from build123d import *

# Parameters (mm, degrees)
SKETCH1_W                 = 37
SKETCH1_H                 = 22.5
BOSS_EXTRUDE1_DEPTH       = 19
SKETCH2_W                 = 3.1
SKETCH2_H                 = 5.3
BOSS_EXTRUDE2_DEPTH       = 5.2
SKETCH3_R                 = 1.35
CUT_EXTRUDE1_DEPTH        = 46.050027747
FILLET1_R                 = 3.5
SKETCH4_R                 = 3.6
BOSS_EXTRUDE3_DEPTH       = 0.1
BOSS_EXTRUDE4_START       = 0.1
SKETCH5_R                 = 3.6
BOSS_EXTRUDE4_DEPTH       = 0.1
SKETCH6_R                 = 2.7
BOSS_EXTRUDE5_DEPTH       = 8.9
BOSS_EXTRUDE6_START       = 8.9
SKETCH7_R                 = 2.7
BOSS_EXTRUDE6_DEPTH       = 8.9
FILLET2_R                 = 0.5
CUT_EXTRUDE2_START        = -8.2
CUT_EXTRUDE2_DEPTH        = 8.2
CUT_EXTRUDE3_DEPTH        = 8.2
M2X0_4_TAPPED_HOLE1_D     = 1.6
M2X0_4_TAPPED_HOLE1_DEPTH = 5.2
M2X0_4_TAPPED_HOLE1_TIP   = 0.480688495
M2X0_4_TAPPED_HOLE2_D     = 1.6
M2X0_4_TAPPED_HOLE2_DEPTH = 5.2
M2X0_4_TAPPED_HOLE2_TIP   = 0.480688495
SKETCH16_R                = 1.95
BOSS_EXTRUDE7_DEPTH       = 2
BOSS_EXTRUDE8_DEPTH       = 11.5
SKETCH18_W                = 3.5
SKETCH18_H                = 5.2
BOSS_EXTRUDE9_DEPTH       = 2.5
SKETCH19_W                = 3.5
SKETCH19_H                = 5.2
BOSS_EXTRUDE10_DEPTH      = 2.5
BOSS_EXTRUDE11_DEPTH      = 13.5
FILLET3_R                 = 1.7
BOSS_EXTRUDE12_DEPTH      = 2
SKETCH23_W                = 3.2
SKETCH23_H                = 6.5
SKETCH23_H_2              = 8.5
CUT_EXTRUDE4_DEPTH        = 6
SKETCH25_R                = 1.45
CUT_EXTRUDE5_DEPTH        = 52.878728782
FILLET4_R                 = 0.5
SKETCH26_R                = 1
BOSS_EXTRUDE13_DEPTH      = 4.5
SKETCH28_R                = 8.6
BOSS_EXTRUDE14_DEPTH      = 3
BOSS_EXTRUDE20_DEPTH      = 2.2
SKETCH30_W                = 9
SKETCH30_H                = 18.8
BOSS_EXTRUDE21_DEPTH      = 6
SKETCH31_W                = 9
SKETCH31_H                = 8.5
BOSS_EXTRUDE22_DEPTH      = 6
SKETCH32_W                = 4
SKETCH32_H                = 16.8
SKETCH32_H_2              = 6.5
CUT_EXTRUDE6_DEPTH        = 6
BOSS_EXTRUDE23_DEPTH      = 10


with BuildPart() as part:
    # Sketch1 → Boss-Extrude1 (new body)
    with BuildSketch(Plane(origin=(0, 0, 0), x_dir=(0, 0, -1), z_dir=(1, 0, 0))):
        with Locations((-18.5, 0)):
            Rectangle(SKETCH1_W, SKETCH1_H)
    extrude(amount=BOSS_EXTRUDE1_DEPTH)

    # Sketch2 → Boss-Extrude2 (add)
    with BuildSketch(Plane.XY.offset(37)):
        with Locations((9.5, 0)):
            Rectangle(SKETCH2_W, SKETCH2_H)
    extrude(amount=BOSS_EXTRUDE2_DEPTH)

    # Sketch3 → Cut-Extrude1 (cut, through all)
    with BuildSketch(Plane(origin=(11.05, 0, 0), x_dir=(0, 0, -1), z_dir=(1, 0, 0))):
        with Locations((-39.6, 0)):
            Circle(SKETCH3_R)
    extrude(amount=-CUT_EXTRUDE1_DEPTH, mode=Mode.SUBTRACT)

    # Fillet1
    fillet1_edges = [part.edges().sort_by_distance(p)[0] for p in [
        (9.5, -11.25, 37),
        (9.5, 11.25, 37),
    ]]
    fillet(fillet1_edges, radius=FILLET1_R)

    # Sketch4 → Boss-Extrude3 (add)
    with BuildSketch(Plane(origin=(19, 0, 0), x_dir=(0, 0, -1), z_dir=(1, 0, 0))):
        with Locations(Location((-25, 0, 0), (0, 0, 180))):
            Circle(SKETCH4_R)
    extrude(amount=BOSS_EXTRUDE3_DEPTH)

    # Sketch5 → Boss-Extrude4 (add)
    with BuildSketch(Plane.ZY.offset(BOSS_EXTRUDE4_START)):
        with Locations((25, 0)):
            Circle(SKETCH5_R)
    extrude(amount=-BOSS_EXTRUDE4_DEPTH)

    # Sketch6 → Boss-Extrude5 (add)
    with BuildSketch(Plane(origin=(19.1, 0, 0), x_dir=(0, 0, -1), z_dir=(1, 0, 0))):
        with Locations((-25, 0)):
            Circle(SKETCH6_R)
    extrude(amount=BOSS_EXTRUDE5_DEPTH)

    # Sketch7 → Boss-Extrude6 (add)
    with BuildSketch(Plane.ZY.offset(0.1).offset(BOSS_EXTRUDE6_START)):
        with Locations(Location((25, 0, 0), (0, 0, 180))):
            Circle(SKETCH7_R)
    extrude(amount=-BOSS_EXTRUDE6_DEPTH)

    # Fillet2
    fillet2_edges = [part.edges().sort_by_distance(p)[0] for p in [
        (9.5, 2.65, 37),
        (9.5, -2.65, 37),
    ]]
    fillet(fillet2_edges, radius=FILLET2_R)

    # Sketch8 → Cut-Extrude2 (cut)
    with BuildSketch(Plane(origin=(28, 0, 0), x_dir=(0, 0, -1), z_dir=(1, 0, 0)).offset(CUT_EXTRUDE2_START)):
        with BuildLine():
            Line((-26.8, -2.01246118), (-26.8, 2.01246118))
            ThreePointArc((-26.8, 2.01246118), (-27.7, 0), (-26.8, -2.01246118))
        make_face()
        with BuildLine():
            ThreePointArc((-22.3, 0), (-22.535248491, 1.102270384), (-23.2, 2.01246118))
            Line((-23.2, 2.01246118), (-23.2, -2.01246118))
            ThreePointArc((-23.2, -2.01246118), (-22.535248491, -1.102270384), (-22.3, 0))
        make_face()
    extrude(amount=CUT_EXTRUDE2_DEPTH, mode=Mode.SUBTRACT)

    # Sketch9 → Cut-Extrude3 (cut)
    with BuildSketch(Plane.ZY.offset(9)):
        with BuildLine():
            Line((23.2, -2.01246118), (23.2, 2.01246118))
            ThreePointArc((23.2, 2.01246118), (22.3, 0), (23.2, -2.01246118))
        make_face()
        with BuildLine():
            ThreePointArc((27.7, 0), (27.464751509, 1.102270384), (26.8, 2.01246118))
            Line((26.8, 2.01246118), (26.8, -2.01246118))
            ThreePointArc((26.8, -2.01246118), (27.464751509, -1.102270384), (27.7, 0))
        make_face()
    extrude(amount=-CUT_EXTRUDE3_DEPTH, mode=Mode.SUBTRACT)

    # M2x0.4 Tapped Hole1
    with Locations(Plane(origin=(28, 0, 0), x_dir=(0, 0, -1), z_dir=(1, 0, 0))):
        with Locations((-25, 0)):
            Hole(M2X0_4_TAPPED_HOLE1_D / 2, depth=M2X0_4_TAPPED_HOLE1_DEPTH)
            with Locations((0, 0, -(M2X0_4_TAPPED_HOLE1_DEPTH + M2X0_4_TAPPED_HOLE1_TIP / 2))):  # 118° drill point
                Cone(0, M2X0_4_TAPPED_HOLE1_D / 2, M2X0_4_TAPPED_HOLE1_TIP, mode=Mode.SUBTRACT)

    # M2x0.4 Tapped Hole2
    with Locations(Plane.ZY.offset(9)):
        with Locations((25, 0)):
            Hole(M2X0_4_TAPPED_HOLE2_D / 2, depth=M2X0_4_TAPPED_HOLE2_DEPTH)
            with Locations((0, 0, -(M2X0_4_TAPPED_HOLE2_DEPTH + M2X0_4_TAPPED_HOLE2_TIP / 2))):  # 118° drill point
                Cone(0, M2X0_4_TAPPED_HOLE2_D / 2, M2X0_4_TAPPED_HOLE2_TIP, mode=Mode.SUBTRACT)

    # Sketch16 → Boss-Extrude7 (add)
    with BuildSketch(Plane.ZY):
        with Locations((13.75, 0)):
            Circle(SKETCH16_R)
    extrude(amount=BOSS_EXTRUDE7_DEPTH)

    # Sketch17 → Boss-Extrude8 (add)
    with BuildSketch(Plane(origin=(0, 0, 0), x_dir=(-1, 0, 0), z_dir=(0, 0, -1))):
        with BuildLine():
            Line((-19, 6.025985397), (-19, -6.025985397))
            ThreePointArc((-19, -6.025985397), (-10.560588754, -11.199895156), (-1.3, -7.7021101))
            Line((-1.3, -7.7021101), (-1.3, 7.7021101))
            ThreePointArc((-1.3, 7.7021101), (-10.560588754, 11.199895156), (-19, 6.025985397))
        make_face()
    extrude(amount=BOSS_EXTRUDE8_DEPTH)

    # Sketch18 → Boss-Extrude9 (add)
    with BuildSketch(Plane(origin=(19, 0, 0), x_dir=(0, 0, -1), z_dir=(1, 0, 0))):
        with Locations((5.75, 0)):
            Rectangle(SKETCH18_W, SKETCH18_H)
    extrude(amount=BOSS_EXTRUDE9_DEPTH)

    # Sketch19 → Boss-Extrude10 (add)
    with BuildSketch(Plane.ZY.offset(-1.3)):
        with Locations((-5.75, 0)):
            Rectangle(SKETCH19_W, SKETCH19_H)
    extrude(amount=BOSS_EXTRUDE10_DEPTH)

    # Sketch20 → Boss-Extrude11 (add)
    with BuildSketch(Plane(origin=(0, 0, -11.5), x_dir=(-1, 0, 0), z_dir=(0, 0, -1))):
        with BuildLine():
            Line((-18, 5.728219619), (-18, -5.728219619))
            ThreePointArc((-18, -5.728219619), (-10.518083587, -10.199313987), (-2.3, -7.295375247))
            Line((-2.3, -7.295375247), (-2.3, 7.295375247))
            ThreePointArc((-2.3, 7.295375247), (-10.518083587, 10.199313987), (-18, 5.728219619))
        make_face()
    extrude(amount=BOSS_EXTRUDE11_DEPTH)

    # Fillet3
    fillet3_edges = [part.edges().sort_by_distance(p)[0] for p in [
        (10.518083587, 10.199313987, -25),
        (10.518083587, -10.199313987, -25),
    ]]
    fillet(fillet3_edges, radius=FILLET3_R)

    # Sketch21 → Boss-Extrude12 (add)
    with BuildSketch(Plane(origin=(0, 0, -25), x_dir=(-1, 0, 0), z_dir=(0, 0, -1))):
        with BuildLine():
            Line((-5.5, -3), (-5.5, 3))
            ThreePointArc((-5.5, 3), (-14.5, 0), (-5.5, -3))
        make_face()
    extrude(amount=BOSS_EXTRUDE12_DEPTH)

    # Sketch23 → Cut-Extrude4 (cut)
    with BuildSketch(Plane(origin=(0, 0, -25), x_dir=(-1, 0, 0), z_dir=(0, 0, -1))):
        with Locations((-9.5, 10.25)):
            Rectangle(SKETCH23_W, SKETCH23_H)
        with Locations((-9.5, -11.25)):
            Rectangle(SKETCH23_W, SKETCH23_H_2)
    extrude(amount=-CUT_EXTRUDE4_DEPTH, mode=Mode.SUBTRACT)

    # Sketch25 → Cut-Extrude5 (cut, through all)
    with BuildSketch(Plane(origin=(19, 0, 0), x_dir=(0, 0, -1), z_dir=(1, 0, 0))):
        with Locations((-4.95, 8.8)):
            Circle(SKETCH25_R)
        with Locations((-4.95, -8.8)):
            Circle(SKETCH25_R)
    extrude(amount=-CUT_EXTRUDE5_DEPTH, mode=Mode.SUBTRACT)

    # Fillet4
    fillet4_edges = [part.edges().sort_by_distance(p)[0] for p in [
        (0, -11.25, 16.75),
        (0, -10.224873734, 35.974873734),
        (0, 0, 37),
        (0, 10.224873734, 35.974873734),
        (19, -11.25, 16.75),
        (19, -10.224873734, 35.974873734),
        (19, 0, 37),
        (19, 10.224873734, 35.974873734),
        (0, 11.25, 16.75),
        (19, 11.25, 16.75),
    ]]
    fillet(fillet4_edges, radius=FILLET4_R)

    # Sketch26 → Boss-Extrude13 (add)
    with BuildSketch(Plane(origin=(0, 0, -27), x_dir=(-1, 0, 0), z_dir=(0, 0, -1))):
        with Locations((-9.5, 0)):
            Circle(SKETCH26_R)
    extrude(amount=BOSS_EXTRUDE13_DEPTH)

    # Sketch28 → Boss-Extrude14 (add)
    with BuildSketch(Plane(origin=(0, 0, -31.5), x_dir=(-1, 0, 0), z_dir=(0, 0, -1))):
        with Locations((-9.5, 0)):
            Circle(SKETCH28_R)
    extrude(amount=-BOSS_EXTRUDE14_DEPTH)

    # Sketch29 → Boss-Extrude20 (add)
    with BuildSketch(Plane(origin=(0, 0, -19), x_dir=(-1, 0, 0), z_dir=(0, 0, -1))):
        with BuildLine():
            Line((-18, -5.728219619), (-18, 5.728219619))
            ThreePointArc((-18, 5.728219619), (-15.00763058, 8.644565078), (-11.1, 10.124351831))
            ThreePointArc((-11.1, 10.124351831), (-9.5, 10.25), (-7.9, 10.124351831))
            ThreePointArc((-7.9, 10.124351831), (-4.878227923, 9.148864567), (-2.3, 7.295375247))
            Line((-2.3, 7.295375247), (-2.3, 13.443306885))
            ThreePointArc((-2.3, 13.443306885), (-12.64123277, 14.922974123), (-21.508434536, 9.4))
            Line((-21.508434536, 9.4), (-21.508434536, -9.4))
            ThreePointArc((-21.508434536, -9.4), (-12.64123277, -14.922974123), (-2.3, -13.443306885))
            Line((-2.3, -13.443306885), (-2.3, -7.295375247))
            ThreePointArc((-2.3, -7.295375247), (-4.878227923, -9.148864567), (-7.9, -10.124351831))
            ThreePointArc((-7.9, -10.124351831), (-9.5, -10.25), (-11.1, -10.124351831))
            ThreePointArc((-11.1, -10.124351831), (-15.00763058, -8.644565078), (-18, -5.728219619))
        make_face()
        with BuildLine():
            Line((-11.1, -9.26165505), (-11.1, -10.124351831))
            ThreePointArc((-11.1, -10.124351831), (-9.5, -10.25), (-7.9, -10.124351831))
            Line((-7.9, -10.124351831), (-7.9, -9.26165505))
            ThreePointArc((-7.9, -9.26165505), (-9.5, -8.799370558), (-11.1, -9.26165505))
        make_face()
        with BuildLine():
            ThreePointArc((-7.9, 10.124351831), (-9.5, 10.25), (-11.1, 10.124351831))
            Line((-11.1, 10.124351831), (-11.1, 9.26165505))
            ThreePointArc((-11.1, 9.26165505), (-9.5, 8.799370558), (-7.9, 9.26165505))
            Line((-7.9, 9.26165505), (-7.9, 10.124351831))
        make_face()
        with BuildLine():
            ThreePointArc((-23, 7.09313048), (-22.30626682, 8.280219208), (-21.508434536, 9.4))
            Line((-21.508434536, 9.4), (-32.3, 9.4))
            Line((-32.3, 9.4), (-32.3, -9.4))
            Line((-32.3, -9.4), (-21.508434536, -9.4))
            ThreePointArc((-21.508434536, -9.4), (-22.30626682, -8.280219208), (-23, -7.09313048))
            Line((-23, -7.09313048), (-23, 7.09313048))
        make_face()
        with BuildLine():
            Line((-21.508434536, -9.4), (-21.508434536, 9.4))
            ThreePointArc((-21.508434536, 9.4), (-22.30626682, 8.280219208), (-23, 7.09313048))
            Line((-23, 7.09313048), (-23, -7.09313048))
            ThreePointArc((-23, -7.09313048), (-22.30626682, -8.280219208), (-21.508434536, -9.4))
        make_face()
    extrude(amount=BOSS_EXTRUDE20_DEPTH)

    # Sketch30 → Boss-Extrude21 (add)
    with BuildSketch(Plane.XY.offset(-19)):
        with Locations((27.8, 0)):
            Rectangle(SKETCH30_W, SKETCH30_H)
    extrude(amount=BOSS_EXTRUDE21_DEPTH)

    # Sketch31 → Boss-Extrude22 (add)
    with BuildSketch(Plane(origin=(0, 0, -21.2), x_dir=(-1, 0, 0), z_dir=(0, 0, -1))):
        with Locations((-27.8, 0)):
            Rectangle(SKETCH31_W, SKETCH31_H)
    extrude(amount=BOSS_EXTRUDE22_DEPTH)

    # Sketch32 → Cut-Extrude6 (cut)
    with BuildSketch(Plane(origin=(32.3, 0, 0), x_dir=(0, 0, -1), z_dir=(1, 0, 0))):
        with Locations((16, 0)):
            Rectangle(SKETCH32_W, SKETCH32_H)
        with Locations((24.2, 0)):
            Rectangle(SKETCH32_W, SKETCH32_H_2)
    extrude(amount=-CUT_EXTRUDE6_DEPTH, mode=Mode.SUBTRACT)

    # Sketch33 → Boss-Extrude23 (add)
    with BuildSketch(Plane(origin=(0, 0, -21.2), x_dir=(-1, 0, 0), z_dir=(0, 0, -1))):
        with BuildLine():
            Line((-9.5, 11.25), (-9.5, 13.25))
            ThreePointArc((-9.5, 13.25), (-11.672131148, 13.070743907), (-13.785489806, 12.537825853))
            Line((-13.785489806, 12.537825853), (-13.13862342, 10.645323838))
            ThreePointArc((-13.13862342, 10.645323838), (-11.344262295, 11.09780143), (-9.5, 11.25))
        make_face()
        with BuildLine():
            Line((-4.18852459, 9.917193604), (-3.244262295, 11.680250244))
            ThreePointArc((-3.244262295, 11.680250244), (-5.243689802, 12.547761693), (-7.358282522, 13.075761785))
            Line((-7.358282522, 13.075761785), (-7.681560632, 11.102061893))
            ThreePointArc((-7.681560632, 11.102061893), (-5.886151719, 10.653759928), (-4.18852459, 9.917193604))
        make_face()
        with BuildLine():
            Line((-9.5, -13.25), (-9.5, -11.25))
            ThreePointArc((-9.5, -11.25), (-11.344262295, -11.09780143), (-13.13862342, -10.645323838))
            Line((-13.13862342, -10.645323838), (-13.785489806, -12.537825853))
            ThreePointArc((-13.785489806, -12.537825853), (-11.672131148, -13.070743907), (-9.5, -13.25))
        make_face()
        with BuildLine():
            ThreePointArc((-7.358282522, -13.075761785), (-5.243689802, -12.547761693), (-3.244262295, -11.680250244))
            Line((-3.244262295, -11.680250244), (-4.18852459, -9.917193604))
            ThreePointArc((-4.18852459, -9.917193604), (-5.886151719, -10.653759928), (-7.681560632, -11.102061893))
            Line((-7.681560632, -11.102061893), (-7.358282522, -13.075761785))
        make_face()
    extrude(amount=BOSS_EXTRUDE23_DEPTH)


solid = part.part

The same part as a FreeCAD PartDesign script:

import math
import FreeCAD as App
import Part
import Sketcher
from FreeCAD import Vector


def edges_at(feature, points):
    """Names of the edges that pass closest to the given points."""
    edges = feature.Shape.Edges
    near = lambda p: min(range(len(edges)), key=lambda i: edges[i].distToShape(Part.Vertex(*p))[0])
    return sorted({f"Edge{near(p) + 1}" for p in points})


def add_polygon(sketch, points):
    """Adds a closed chain of lines whose ends are joined by coincident constraints."""
    first, n = sketch.GeometryCount, len(points)
    for a, b in zip(points, points[1:] + points[:1]):
        sketch.addGeometry(Part.LineSegment(App.Vector(*a, 0), App.Vector(*b, 0)), False)
    for i in range(n):
        sketch.addConstraint(Sketcher.Constraint("Coincident", first + i, 2, first + (i + 1) % n, 1))

doc = App.newDocument("Part")
body = doc.addObject("PartDesign::Body", "Body")

# Sketch on YZ plane
sketch1 = body.newObject("Sketcher::SketchObject", "Sketch")
sketch1.AttachmentSupport = (doc.getObject("YZ_Plane"), [""])
sketch1.MapMode = "FlatFace"
add_polygon(sketch1, [(11, 37), (-11, 37), (-11, 0), (11, 0)])  # lines 0-3
sketch1.addConstraint(Sketcher.Constraint("Horizontal", 0))
sketch1.addConstraint(Sketcher.Constraint("Vertical", 1))
sketch1.addConstraint(Sketcher.Constraint("Horizontal", 2))
sketch1.addConstraint(Sketcher.Constraint("Vertical", 3))
sketch1.addConstraint(Sketcher.Constraint("Symmetric", 1, 2, 2, 2, -1, 1))
sketch1.addConstraint(Sketcher.Constraint("DistanceY", 1, 2, 1, 1, 37.0))
sketch1.addConstraint(Sketcher.Constraint("DistanceX", 0, 2, 0, 1, 22.5))
pad1 = body.newObject("PartDesign::Pad", "Pad")
pad1.Profile = sketch1
pad1.Length = 19

# Sketch on XY plane
sketch2 = body.newObject("Sketcher::SketchObject", "Sketch001")
sketch2.AttachmentSupport = (doc.getObject("XY_Plane"), [""])
sketch2.MapMode = "FlatFace"
sketch2.AttachmentOffset = App.Placement(Vector(0, 0, 37), App.Rotation())
add_polygon(sketch2, [(8, 2.6), (8, -2.6), (11.1, -2.6), (11.1, 2.6)])  # lines 0-3
sketch2.addConstraint(Sketcher.Constraint("Vertical", 0))
sketch2.addConstraint(Sketcher.Constraint("Horizontal", 1))
sketch2.addConstraint(Sketcher.Constraint("Vertical", 2))
sketch2.addConstraint(Sketcher.Constraint("Horizontal", 3))
sketch2.addConstraint(Sketcher.Constraint("DistanceX", 1, 1, 1, 2, 3.1))
sketch2.addConstraint(Sketcher.Constraint("DistanceY", 0, 2, 0, 1, 5.3))
sketch2.addConstraint(Sketcher.Constraint("DistanceX", -1, 1, 0, 2, 7.95))
sketch2.addConstraint(Sketcher.Constraint("DistanceY", 0, 2, -1, 1, 2.65))
pad2 = body.newObject("PartDesign::Pad", "Pad001")
pad2.Profile = sketch2
pad2.Length = 5.2

# Sketch on YZ plane
sketch3 = body.newObject("Sketcher::SketchObject", "Sketch002")
sketch3.AttachmentSupport = (doc.getObject("YZ_Plane"), [""])
sketch3.MapMode = "FlatFace"
sketch3.AttachmentOffset = App.Placement(Vector(0, 0, 11.05), App.Rotation())
sketch3.addGeometry(Part.Circle(Vector(0, 39.6, 0), Vector(0, 0, 1), 1.4), False)
sketch3.addConstraint(Sketcher.Constraint("PointOnObject", 0, 3, -2))
sketch3.addConstraint(Sketcher.Constraint("Diameter", 0, 2.7))
sketch3.addConstraint(Sketcher.Constraint("DistanceY", -1, 1, 0, 3, 39.6))
pocket1 = body.newObject("PartDesign::Pocket", "Pocket")
pocket1.Profile = sketch3
pocket1.Type = "ThroughAll"
doc.recompute()

fillet = body.newObject("PartDesign::Fillet", "Fillet")
fillet.Base = (pocket1, edges_at(pocket1, [(9.5, -11.25, 37), (9.5, 11.25, 37)]))
fillet.Radius = 3.5

# Sketch on YZ plane
sketch4 = body.newObject("Sketcher::SketchObject", "Sketch003")
sketch4.AttachmentSupport = (doc.getObject("YZ_Plane"), [""])
sketch4.MapMode = "FlatFace"
sketch4.AttachmentOffset = App.Placement(Vector(0, 0, 19), App.Rotation())
sketch4.addGeometry(Part.Circle(Vector(0, 25, 0), Vector(0, 0, 1), 3.6), False)
sketch4.addConstraint(Sketcher.Constraint("PointOnObject", 0, 3, -2))
sketch4.addConstraint(Sketcher.Constraint("Diameter", 0, 7.2))
sketch4.addConstraint(Sketcher.Constraint("DistanceY", -1, 1, 0, 3, 25.0))
pad3 = body.newObject("PartDesign::Pad", "Pad002")
pad3.Profile = sketch4
pad3.Length = 0.1

# Sketch on YZ plane
sketch5 = body.newObject("Sketcher::SketchObject", "Sketch004")
sketch5.AttachmentSupport = (doc.getObject("YZ_Plane"), [""])
sketch5.MapMode = "FlatFace"
sketch5.AttachmentOffset = App.Placement(Vector(0, 0, -0.1), App.Rotation())
sketch5.addGeometry(Part.Circle(Vector(0, 25, 0), Vector(0, 0, 1), 3.6), False)
sketch5.addConstraint(Sketcher.Constraint("PointOnObject", 0, 3, -2))
sketch5.addConstraint(Sketcher.Constraint("Diameter", 0, 7.2))
sketch5.addConstraint(Sketcher.Constraint("DistanceY", -1, 1, 0, 3, 25.0))
pad4 = body.newObject("PartDesign::Pad", "Pad003")
pad4.Profile = sketch5
pad4.Length = 0.1

# Sketch on YZ plane
sketch6 = body.newObject("Sketcher::SketchObject", "Sketch005")
sketch6.AttachmentSupport = (doc.getObject("YZ_Plane"), [""])
sketch6.MapMode = "FlatFace"
sketch6.AttachmentOffset = App.Placement(Vector(0, 0, 19.1), App.Rotation())
sketch6.addGeometry(Part.Circle(Vector(0, 25, 0), Vector(0, 0, 1), 2.7), False)
sketch6.addConstraint(Sketcher.Constraint("PointOnObject", 0, 3, -2))
sketch6.addConstraint(Sketcher.Constraint("Diameter", 0, 5.4))
sketch6.addConstraint(Sketcher.Constraint("DistanceY", -1, 1, 0, 3, 25.0))
pad5 = body.newObject("PartDesign::Pad", "Pad004")
pad5.Profile = sketch6
pad5.Length = 8.9

# Sketch on YZ plane
sketch7 = body.newObject("Sketcher::SketchObject", "Sketch006")
sketch7.AttachmentSupport = (doc.getObject("YZ_Plane"), [""])
sketch7.MapMode = "FlatFace"
sketch7.AttachmentOffset = App.Placement(Vector(0, 0, -9), App.Rotation())
sketch7.addGeometry(Part.Circle(Vector(0, 25, 0), Vector(0, 0, 1), 2.7), False)
sketch7.addConstraint(Sketcher.Constraint("PointOnObject", 0, 3, -2))
sketch7.addConstraint(Sketcher.Constraint("Diameter", 0, 5.4))
sketch7.addConstraint(Sketcher.Constraint("DistanceY", -1, 1, 0, 3, 25.0))
pad6 = body.newObject("PartDesign::Pad", "Pad005")
pad6.Profile = sketch7
pad6.Length = 8.9
doc.recompute()

fillet2 = body.newObject("PartDesign::Fillet", "Fillet001")
fillet2.Base = (pad6, edges_at(pad6, [(9.5, 2.65, 37), (9.5, -2.65, 37)]))
fillet2.Radius = 0.5

# Sketch on YZ plane
sketch8 = body.newObject("Sketcher::SketchObject", "Sketch007")
sketch8.AttachmentSupport = (doc.getObject("YZ_Plane"), [""])
sketch8.MapMode = "FlatFace"
sketch8.AttachmentOffset = App.Placement(Vector(0, 0, 19.8), App.Rotation())
sketch8.addGeometry(Part.LineSegment(Vector(-2, 26.8, 0), Vector(2, 26.8, 0)), False)
sketch8.addGeometry(Part.ArcOfCircle(Part.Circle(Vector(0, 25, 0), Vector(0, 0, 1), 2.7), math.radians(42), math.radians(138)), False)
sketch8.addGeometry(Part.ArcOfCircle(Part.Circle(Vector(0, 25, 0), Vector(0, 0, 1), 2.7), math.radians(-90), math.radians(-42)), False)
sketch8.addGeometry(Part.LineSegment(Vector(2, 23.2, 0), Vector(-2, 23.2, 0)), False)
sketch8.addGeometry(Part.ArcOfCircle(Part.Circle(Vector(0, 25, 0), Vector(0, 0, 1), 2.7), math.radians(-138), math.radians(-90)), False)
sketch8.addConstraint(Sketcher.Constraint("Coincident", 0, 1, 1, 2))
sketch8.addConstraint(Sketcher.Constraint("Coincident", 1, 1, 0, 2))
sketch8.addConstraint(Sketcher.Constraint("Coincident", 2, 2, 3, 1))
sketch8.addConstraint(Sketcher.Constraint("Coincident", 3, 2, 4, 1))
sketch8.addConstraint(Sketcher.Constraint("Tangent", 4, 2, 2, 1))
sketch8.addConstraint(Sketcher.Constraint("Horizontal", 0))
sketch8.addConstraint(Sketcher.Constraint("Horizontal", 3))
sketch8.addConstraint(Sketcher.Constraint("Coincident", 2, 3, 1, 3))
sketch8.addConstraint(Sketcher.Constraint("Equal", 1, 2))
sketch8.addConstraint(Sketcher.Constraint("Equal", 2, 4))
sketch8.addConstraint(Sketcher.Constraint("PointOnObject", 1, 3, -2))
sketch8.addConstraint(Sketcher.Constraint("PointOnObject", 4, 2, -2))
sketch8.addConstraint(Sketcher.Constraint("Vertical", 1, 1, 2, 2))
sketch8.addConstraint(Sketcher.Constraint("Radius", 1, 2.7))
sketch8.addConstraint(Sketcher.Constraint("DistanceY", -1, 1, 1, 3, 25.0))
sketch8.addConstraint(Sketcher.Constraint("DistanceY", -1, 1, 0, 1, 26.8))
pocket2 = body.newObject("PartDesign::Pocket", "Pocket001")
pocket2.Profile = sketch8
pocket2.Length = 8.2
pocket2.Reversed = True

# Sketch on YZ plane
sketch9 = body.newObject("Sketcher::SketchObject", "Sketch008")
sketch9.AttachmentSupport = (doc.getObject("YZ_Plane"), [""])
sketch9.MapMode = "FlatFace"
sketch9.AttachmentOffset = App.Placement(Vector(0, 0, -9), App.Rotation())
sketch9.addGeometry(Part.LineSegment(Vector(-2, 23.2, 0), Vector(2, 23.2, 0)), False)
sketch9.addGeometry(Part.ArcOfCircle(Part.Circle(Vector(0, 25, 0), Vector(0, 0, 1), 2.7), math.radians(-138), math.radians(-42)), False)
sketch9.addGeometry(Part.ArcOfCircle(Part.Circle(Vector(0, 25, 0), Vector(0, 0, 1), 2.7), math.radians(42), math.radians(90)), False)
sketch9.addGeometry(Part.LineSegment(Vector(2, 26.8, 0), Vector(-2, 26.8, 0)), False)
sketch9.addGeometry(Part.ArcOfCircle(Part.Circle(Vector(0, 25, 0), Vector(0, 0, 1), 2.7), math.radians(90), math.radians(138)), False)
sketch9.addConstraint(Sketcher.Constraint("Coincident", 0, 1, 1, 1))
sketch9.addConstraint(Sketcher.Constraint("Coincident", 1, 2, 0, 2))
sketch9.addConstraint(Sketcher.Constraint("Coincident", 2, 1, 3, 1))
sketch9.addConstraint(Sketcher.Constraint("Coincident", 3, 2, 4, 2))
sketch9.addConstraint(Sketcher.Constraint("Tangent", 4, 1, 2, 2))
sketch9.addConstraint(Sketcher.Constraint("Horizontal", 0))
sketch9.addConstraint(Sketcher.Constraint("Horizontal", 3))
sketch9.addConstraint(Sketcher.Constraint("Coincident", 2, 3, 1, 3))
sketch9.addConstraint(Sketcher.Constraint("Equal", 1, 2))
sketch9.addConstraint(Sketcher.Constraint("Equal", 2, 4))
sketch9.addConstraint(Sketcher.Constraint("PointOnObject", 1, 3, -2))
sketch9.addConstraint(Sketcher.Constraint("PointOnObject", 4, 1, -2))
sketch9.addConstraint(Sketcher.Constraint("Vertical", 1, 2, 2, 1))
sketch9.addConstraint(Sketcher.Constraint("Radius", 1, 2.7))
sketch9.addConstraint(Sketcher.Constraint("DistanceY", -1, 1, 1, 3, 25.0))
sketch9.addConstraint(Sketcher.Constraint("DistanceY", -1, 1, 0, 1, 23.2))
pocket3 = body.newObject("PartDesign::Pocket", "Pocket002")
pocket3.Profile = sketch9
pocket3.Length = 8.2
pocket3.Reversed = True

# Sketch on YZ plane
sketch10 = body.newObject("Sketcher::SketchObject", "Sketch009")
sketch10.AttachmentSupport = (doc.getObject("YZ_Plane"), [""])
sketch10.MapMode = "FlatFace"
sketch10.AttachmentOffset = App.Placement(Vector(0, 0, 28), App.Rotation())
sketch10.addGeometry(Part.Circle(Vector(0, 25, 0), Vector(0, 0, 1), 0.8), False)
sketch10.addConstraint(Sketcher.Constraint("PointOnObject", 0, 3, -2))
sketch10.addConstraint(Sketcher.Constraint("Diameter", 0, 1.6))
sketch10.addConstraint(Sketcher.Constraint("DistanceY", -1, 1, 0, 3, 25.0))
doc.recompute()
hole = body.newObject("PartDesign::Hole", "Hole")
hole.Profile = sketch10
hole.ThreadType = "None"
hole.Diameter = 1.6
hole.DepthType = "Dimension"
hole.Depth = 5.2
hole.DrillPoint = "Angled"
hole.DrillPointAngle = 118

# Sketch on YZ plane
sketch11 = body.newObject("Sketcher::SketchObject", "Sketch010")
sketch11.AttachmentSupport = (doc.getObject("YZ_Plane"), [""])
sketch11.MapMode = "FlatFace"
sketch11.AttachmentOffset = App.Placement(Vector(0, 0, -9), App.Rotation())
sketch11.addGeometry(Part.Circle(Vector(0, 25, 0), Vector(0, 0, 1), 0.8), False)
sketch11.addConstraint(Sketcher.Constraint("PointOnObject", 0, 3, -2))
sketch11.addConstraint(Sketcher.Constraint("Diameter", 0, 1.6))
sketch11.addConstraint(Sketcher.Constraint("DistanceY", -1, 1, 0, 3, 25.0))
doc.recompute()
hole2 = body.newObject("PartDesign::Hole", "Hole001")
hole2.Profile = sketch11
hole2.ThreadType = "None"
hole2.Diameter = 1.6
hole2.DepthType = "Dimension"
hole2.Depth = 5.2
hole2.DrillPoint = "Angled"
hole2.DrillPointAngle = 118
hole2.Reversed = True

# Sketch on YZ plane
sketch12 = body.newObject("Sketcher::SketchObject", "Sketch011")
sketch12.AttachmentSupport = (doc.getObject("YZ_Plane"), [""])
sketch12.MapMode = "FlatFace"
sketch12.addGeometry(Part.Circle(Vector(0, 13.8, 0), Vector(0, 0, 1), 1.9), False)
sketch12.addConstraint(Sketcher.Constraint("PointOnObject", 0, 3, -2))
sketch12.addConstraint(Sketcher.Constraint("Diameter", 0, 3.9))
sketch12.addConstraint(Sketcher.Constraint("DistanceY", -1, 1, 0, 3, 13.75))
pad7 = body.newObject("PartDesign::Pad", "Pad006")
pad7.Profile = sketch12
pad7.Length = 2
pad7.Reversed = True

# Sketch on XY plane
sketch13 = body.newObject("Sketcher::SketchObject", "Sketch012")
sketch13.AttachmentSupport = (doc.getObject("XY_Plane"), [""])
sketch13.MapMode = "FlatFace"
sketch13.addGeometry(Part.LineSegment(Vector(19, 6, 0), Vector(19, -6, 0)), False)
sketch13.addGeometry(Part.ArcOfCircle(Part.Circle(Vector(10, 0, 0), Vector(0, 0, 1), 11), math.radians(-137), math.radians(-32)), False)
sketch13.addGeometry(Part.LineSegment(Vector(1, -8, 0), Vector(1, 8, 0)), False)
sketch13.addGeometry(Part.ArcOfCircle(Part.Circle(Vector(10, 0, 0), Vector(0, 0, 1), 11), math.radians(32), math.radians(137)), False)
sketch13.addConstraint(Sketcher.Constraint("Coincident", 0, 2, 1, 2))
sketch13.addConstraint(Sketcher.Constraint("Coincident", 1, 1, 2, 1))
sketch13.addConstraint(Sketcher.Constraint("Coincident", 2, 2, 3, 2))
sketch13.addConstraint(Sketcher.Constraint("Coincident", 3, 1, 0, 1))
sketch13.addConstraint(Sketcher.Constraint("Vertical", 0))
sketch13.addConstraint(Sketcher.Constraint("Vertical", 2))
sketch13.addConstraint(Sketcher.Constraint("Coincident", 3, 3, 1, 3))
sketch13.addConstraint(Sketcher.Constraint("Equal", 1, 3))
sketch13.addConstraint(Sketcher.Constraint("PointOnObject", 1, 3, -1))
sketch13.addConstraint(Sketcher.Constraint("Radius", 1, 11.25))
sketch13.addConstraint(Sketcher.Constraint("DistanceX", -1, 1, 0, 2, 19.0))
sketch13.addConstraint(Sketcher.Constraint("DistanceX", -1, 1, 1, 3, 9.5))
sketch13.addConstraint(Sketcher.Constraint("DistanceX", -1, 1, 1, 1, 1.3))
pad8 = body.newObject("PartDesign::Pad", "Pad007")
pad8.Profile = sketch13
pad8.Length = 11.5
pad8.Reversed = True

# Sketch on YZ plane
sketch14 = body.newObject("Sketcher::SketchObject", "Sketch013")
sketch14.AttachmentSupport = (doc.getObject("YZ_Plane"), [""])
sketch14.MapMode = "FlatFace"
sketch14.AttachmentOffset = App.Placement(Vector(0, 0, 19), App.Rotation())
add_polygon(sketch14, [(2.6, -4), (-2.6, -4), (-2.6, -7.5), (2.6, -7.5)])  # lines 0-3
sketch14.addConstraint(Sketcher.Constraint("Horizontal", 0))
sketch14.addConstraint(Sketcher.Constraint("Vertical", 1))
sketch14.addConstraint(Sketcher.Constraint("Horizontal", 2))
sketch14.addConstraint(Sketcher.Constraint("Vertical", 3))
sketch14.addConstraint(Sketcher.Constraint("DistanceX", 0, 2, 0, 1, 5.2))
sketch14.addConstraint(Sketcher.Constraint("DistanceY", 1, 2, 1, 1, 3.5))
sketch14.addConstraint(Sketcher.Constraint("DistanceY", 0, 2, -1, 1, 4.0))
sketch14.addConstraint(Sketcher.Constraint("DistanceX", 0, 2, -1, 1, 2.6))
pad9 = body.newObject("PartDesign::Pad", "Pad008")
pad9.Profile = sketch14
pad9.Length = 2.5

# Sketch on YZ plane
sketch15 = body.newObject("Sketcher::SketchObject", "Sketch014")
sketch15.AttachmentSupport = (doc.getObject("YZ_Plane"), [""])
sketch15.MapMode = "FlatFace"
sketch15.AttachmentOffset = App.Placement(Vector(0, 0, 1.3), App.Rotation())
add_polygon(sketch15, [(2.6, -7.5), (-2.6, -7.5), (-2.6, -4), (2.6, -4)])  # lines 0-3
sketch15.addConstraint(Sketcher.Constraint("Horizontal", 0))
sketch15.addConstraint(Sketcher.Constraint("Vertical", 1))
sketch15.addConstraint(Sketcher.Constraint("Horizontal", 2))
sketch15.addConstraint(Sketcher.Constraint("Vertical", 3))
sketch15.addConstraint(Sketcher.Constraint("DistanceX", 0, 2, 0, 1, 5.2))
sketch15.addConstraint(Sketcher.Constraint("DistanceY", 1, 1, 1, 2, 3.5))
sketch15.addConstraint(Sketcher.Constraint("DistanceY", 1, 2, -1, 1, 4.0))
sketch15.addConstraint(Sketcher.Constraint("DistanceX", 0, 2, -1, 1, 2.6))
pad10 = body.newObject("PartDesign::Pad", "Pad009")
pad10.Profile = sketch15
pad10.Length = 2.5
pad10.Reversed = True

# Sketch on XY plane
sketch16 = body.newObject("Sketcher::SketchObject", "Sketch015")
sketch16.AttachmentSupport = (doc.getObject("XY_Plane"), [""])
sketch16.MapMode = "FlatFace"
sketch16.AttachmentOffset = App.Placement(Vector(0, 0, -11.5), App.Rotation())
sketch16.addGeometry(Part.LineSegment(Vector(18, 6, 0), Vector(18, -6, 0)), False)
sketch16.addGeometry(Part.ArcOfCircle(Part.Circle(Vector(10, 0, 0), Vector(0, 0, 1), 10), math.radians(-135), math.radians(-34)), False)
sketch16.addGeometry(Part.LineSegment(Vector(2, -7, 0), Vector(2, 7, 0)), False)
sketch16.addGeometry(Part.ArcOfCircle(Part.Circle(Vector(10, 0, 0), Vector(0, 0, 1), 10), math.radians(34), math.radians(135)), False)
sketch16.addConstraint(Sketcher.Constraint("Coincident", 0, 2, 1, 2))
sketch16.addConstraint(Sketcher.Constraint("Coincident", 1, 1, 2, 1))
sketch16.addConstraint(Sketcher.Constraint("Coincident", 2, 2, 3, 2))
sketch16.addConstraint(Sketcher.Constraint("Coincident", 3, 1, 0, 1))
sketch16.addConstraint(Sketcher.Constraint("Vertical", 0))
sketch16.addConstraint(Sketcher.Constraint("Vertical", 2))
sketch16.addConstraint(Sketcher.Constraint("Coincident", 3, 3, 1, 3))
sketch16.addConstraint(Sketcher.Constraint("Equal", 1, 3))
sketch16.addConstraint(Sketcher.Constraint("PointOnObject", 1, 3, -1))
sketch16.addConstraint(Sketcher.Constraint("Radius", 1, 10.25))
sketch16.addConstraint(Sketcher.Constraint("DistanceX", -1, 1, 0, 2, 18.0))
sketch16.addConstraint(Sketcher.Constraint("DistanceX", -1, 1, 1, 3, 9.5))
sketch16.addConstraint(Sketcher.Constraint("DistanceX", -1, 1, 1, 1, 2.3))
pad11 = body.newObject("PartDesign::Pad", "Pad010")
pad11.Profile = sketch16
pad11.Length = 13.5
pad11.Reversed = True
doc.recompute()

fillet3 = body.newObject("PartDesign::Fillet", "Fillet002")
fillet3.Base = (pad11, edges_at(pad11, [(10.518, 10.199, -25), (10.518, -10.199, -25)]))
fillet3.Radius = 1.7

# Sketch on XY plane
sketch17 = body.newObject("Sketcher::SketchObject", "Sketch016")
sketch17.AttachmentSupport = (doc.getObject("XY_Plane"), [""])
sketch17.MapMode = "FlatFace"
sketch17.AttachmentOffset = App.Placement(Vector(0, 0, -25), App.Rotation())
sketch17.addGeometry(Part.LineSegment(Vector(6, -3, 0), Vector(6, 3, 0)), False)
sketch17.addGeometry(Part.ArcOfCircle(Part.Circle(Vector(10, 0, 0), Vector(0, 0, 1), 5), math.radians(-143), math.radians(143)), False)
sketch17.addConstraint(Sketcher.Constraint("Coincident", 0, 1, 1, 1))
sketch17.addConstraint(Sketcher.Constraint("Coincident", 1, 2, 0, 2))
sketch17.addConstraint(Sketcher.Constraint("Vertical", 0))
sketch17.addConstraint(Sketcher.Constraint("PointOnObject", 1, 3, -1))
sketch17.addConstraint(Sketcher.Constraint("Radius", 1, 5.0))
sketch17.addConstraint(Sketcher.Constraint("DistanceY", 0, 1, 0, 2, 6.0))
sketch17.addConstraint(Sketcher.Constraint("DistanceX", -1, 1, 1, 3, 9.5))
pad12 = body.newObject("PartDesign::Pad", "Pad011")
pad12.Profile = sketch17
pad12.Length = 2
pad12.Reversed = True

# Sketch on XY plane
sketch18 = body.newObject("Sketcher::SketchObject", "Sketch017")
sketch18.AttachmentSupport = (doc.getObject("XY_Plane"), [""])
sketch18.MapMode = "FlatFace"
sketch18.AttachmentOffset = App.Placement(Vector(0, 0, -25), App.Rotation())
add_polygon(sketch18, [(11.1, 13.5), (11.1, 7), (7.9, 7), (7.9, 13.5)])  # lines 0-3
add_polygon(sketch18, [(11.1, -7), (11.1, -15.5), (7.9, -15.5), (7.9, -7)])  # lines 4-7
sketch18.addConstraint(Sketcher.Constraint("Vertical", 0))
sketch18.addConstraint(Sketcher.Constraint("Horizontal", 1))
sketch18.addConstraint(Sketcher.Constraint("Vertical", 2))
sketch18.addConstraint(Sketcher.Constraint("Horizontal", 3))
sketch18.addConstraint(Sketcher.Constraint("Vertical", 4))
sketch18.addConstraint(Sketcher.Constraint("Horizontal", 5))
sketch18.addConstraint(Sketcher.Constraint("Vertical", 6))
sketch18.addConstraint(Sketcher.Constraint("Horizontal", 7))
sketch18.addConstraint(Sketcher.Constraint("Symmetric", 1, 2, 6, 2, -1))
sketch18.addConstraint(Sketcher.Constraint("Vertical", 3, 2, 4, 2))
sketch18.addConstraint(Sketcher.Constraint("DistanceX", 1, 2, 1, 1, 3.2))
sketch18.addConstraint(Sketcher.Constraint("DistanceY", 0, 2, 0, 1, 6.5))
sketch18.addConstraint(Sketcher.Constraint("DistanceY", 4, 2, 4, 1, 8.5))
sketch18.addConstraint(Sketcher.Constraint("DistanceY", -1, 1, 0, 2, 7.0))
sketch18.addConstraint(Sketcher.Constraint("DistanceX", -1, 1, 0, 2, 11.1))
pocket4 = body.newObject("PartDesign::Pocket", "Pocket003")
pocket4.Profile = sketch18
pocket4.Length = 6
pocket4.Reversed = True

# Sketch on YZ plane
sketch19 = body.newObject("Sketcher::SketchObject", "Sketch018")
sketch19.AttachmentSupport = (doc.getObject("YZ_Plane"), [""])
sketch19.MapMode = "FlatFace"
sketch19.AttachmentOffset = App.Placement(Vector(0, 0, 19), App.Rotation())
sketch19.addGeometry(Part.Circle(Vector(8.8, 5, 0), Vector(0, 0, 1), 1.4), False)
sketch19.addGeometry(Part.Circle(Vector(-8.8, 5, 0), Vector(0, 0, 1), 1.4), False)
sketch19.addConstraint(Sketcher.Constraint("Equal", 0, 1))
sketch19.addConstraint(Sketcher.Constraint("Symmetric", 0, 3, 1, 3, -2))
sketch19.addConstraint(Sketcher.Constraint("Diameter", 0, 2.9))
sketch19.addConstraint(Sketcher.Constraint("DistanceX", -1, 1, 0, 3, 8.8))
sketch19.addConstraint(Sketcher.Constraint("DistanceY", -1, 1, 0, 3, 4.95))
pocket5 = body.newObject("PartDesign::Pocket", "Pocket004")
pocket5.Profile = sketch19
pocket5.Type = "ThroughAll"
doc.recompute()

fillet4 = body.newObject("PartDesign::Fillet", "Fillet003")
fillet4.Base = (pocket5, edges_at(pocket5, [
    (0, -11.25, 16.75),
    (0, -10.225, 35.975),
    (0, 0, 37),
    (0, 10.225, 35.975),
    (19, -11.25, 16.75),
    (19, -10.225, 35.975),
    (19, 0, 37),
    (19, 10.225, 35.975),
    (0, 11.25, 16.75),
    (19, 11.25, 16.75),
]))
fillet4.Radius = 0.5

# Sketch on XY plane
sketch20 = body.newObject("Sketcher::SketchObject", "Sketch019")
sketch20.AttachmentSupport = (doc.getObject("XY_Plane"), [""])
sketch20.MapMode = "FlatFace"
sketch20.AttachmentOffset = App.Placement(Vector(0, 0, -27), App.Rotation())
sketch20.addGeometry(Part.Circle(Vector(9.5, 0, 0), Vector(0, 0, 1), 1), False)
sketch20.addConstraint(Sketcher.Constraint("PointOnObject", 0, 3, -1))
sketch20.addConstraint(Sketcher.Constraint("Diameter", 0, 2.0))
sketch20.addConstraint(Sketcher.Constraint("DistanceX", -1, 1, 0, 3, 9.5))
pad13 = body.newObject("PartDesign::Pad", "Pad012")
pad13.Profile = sketch20
pad13.Length = 4.5
pad13.Reversed = True

# Sketch on XY plane
sketch21 = body.newObject("Sketcher::SketchObject", "Sketch020")
sketch21.AttachmentSupport = (doc.getObject("XY_Plane"), [""])
sketch21.MapMode = "FlatFace"
sketch21.AttachmentOffset = App.Placement(Vector(0, 0, -31.5), App.Rotation())
sketch21.addGeometry(Part.Circle(Vector(10, 0, 0), Vector(0, 0, 1), 9), False)
sketch21.addConstraint(Sketcher.Constraint("PointOnObject", 0, 3, -1))
sketch21.addConstraint(Sketcher.Constraint("Diameter", 0, 17.2))
sketch21.addConstraint(Sketcher.Constraint("DistanceX", -1, 1, 0, 3, 9.5))
pad14 = body.newObject("PartDesign::Pad", "Pad013")
pad14.Profile = sketch21
pad14.Length = 3

# Sketch on XY plane
sketch22 = body.newObject("Sketcher::SketchObject", "Sketch021")
sketch22.AttachmentSupport = (doc.getObject("XY_Plane"), [""])
sketch22.MapMode = "FlatFace"
sketch22.AttachmentOffset = App.Placement(Vector(0, 0, -19), App.Rotation())
sketch22.addGeometry(Part.LineSegment(Vector(18, -5.7, 0), Vector(18, 5.7, 0)), False)
sketch22.addGeometry(Part.ArcOfCircle(Part.Circle(Vector(9.5, 0, 0), Vector(0, 0, 1), 10.3), math.radians(34), math.radians(81)), False)
sketch22.addGeometry(Part.LineSegment(Vector(11.1, 10.1, 0), Vector(11.1, 9.3, 0)), False)
sketch22.addGeometry(Part.ArcOfCircle(Part.Circle(Vector(9.5, 11.8, 0), Vector(0, 0, 1), 3), math.radians(-122), math.radians(-58)), False)
sketch22.addGeometry(Part.LineSegment(Vector(7.9, 9.3, 0), Vector(7.9, 10.1, 0)), False)
sketch22.addGeometry(Part.ArcOfCircle(Part.Circle(Vector(9.5, 0, 0), Vector(0, 0, 1), 10.2), math.radians(99), math.radians(135)), False)
sketch22.addGeometry(Part.LineSegment(Vector(2.3, 7.3, 0), Vector(2.3, 13.4, 0)), False)
sketch22.addGeometry(Part.ArcOfCircle(Part.Circle(Vector(9.5, 0, 0), Vector(0, 0, 1), 15.3), math.radians(38), math.radians(118)), False)
sketch22.addGeometry(Part.LineSegment(Vector(21.5, 9.4, 0), Vector(32.3, 9.4, 0)), False)
sketch22.addGeometry(Part.LineSegment(Vector(32.3, 9.4, 0), Vector(32.3, -9.4, 0)), False)
sketch22.addGeometry(Part.LineSegment(Vector(32.3, -9.4, 0), Vector(21.5, -9.4, 0)), False)
sketch22.addGeometry(Part.ArcOfCircle(Part.Circle(Vector(9.5, 0, 0), Vector(0, 0, 1), 15.3), math.radians(-118), math.radians(-38)), False)
sketch22.addGeometry(Part.LineSegment(Vector(2.3, -13.4, 0), Vector(2.3, -7.3, 0)), False)
sketch22.addGeometry(Part.ArcOfCircle(Part.Circle(Vector(9.5, 0, 0), Vector(0, 0, 1), 10.2), math.radians(-135), math.radians(-99)), False)
sketch22.addGeometry(Part.LineSegment(Vector(7.9, -10.1, 0), Vector(7.9, -9.3, 0)), False)
sketch22.addGeometry(Part.ArcOfCircle(Part.Circle(Vector(9.5, -11.8, 0), Vector(0, 0, 1), 3), math.radians(58), math.radians(122)), False)
sketch22.addGeometry(Part.LineSegment(Vector(11.1, -9.3, 0), Vector(11.1, -10.1, 0)), False)
sketch22.addGeometry(Part.ArcOfCircle(Part.Circle(Vector(9.5, 0, 0), Vector(0, 0, 1), 10.3), math.radians(-81), math.radians(-34)), False)
sketch22.addConstraint(Sketcher.Constraint("Coincident", 0, 2, 1, 1))
sketch22.addConstraint(Sketcher.Constraint("Coincident", 1, 2, 2, 1))
sketch22.addConstraint(Sketcher.Constraint("Coincident", 2, 2, 3, 2))
sketch22.addConstraint(Sketcher.Constraint("Coincident", 3, 1, 4, 1))
sketch22.addConstraint(Sketcher.Constraint("Coincident", 4, 2, 5, 1))
sketch22.addConstraint(Sketcher.Constraint("Coincident", 5, 2, 6, 1))
sketch22.addConstraint(Sketcher.Constraint("Coincident", 6, 2, 7, 2))
sketch22.addConstraint(Sketcher.Constraint("Coincident", 7, 1, 8, 1))
sketch22.addConstraint(Sketcher.Constraint("Coincident", 8, 2, 9, 1))
sketch22.addConstraint(Sketcher.Constraint("Coincident", 9, 2, 10, 1))
sketch22.addConstraint(Sketcher.Constraint("Coincident", 10, 2, 11, 2))
sketch22.addConstraint(Sketcher.Constraint("Coincident", 11, 1, 12, 1))
sketch22.addConstraint(Sketcher.Constraint("Coincident", 12, 2, 13, 1))
sketch22.addConstraint(Sketcher.Constraint("Coincident", 13, 2, 14, 1))
sketch22.addConstraint(Sketcher.Constraint("Coincident", 14, 2, 15, 2))
sketch22.addConstraint(Sketcher.Constraint("Coincident", 15, 1, 16, 1))
sketch22.addConstraint(Sketcher.Constraint("Coincident", 16, 2, 17, 1))
sketch22.addConstraint(Sketcher.Constraint("Coincident", 17, 2, 0, 1))
sketch22.addConstraint(Sketcher.Constraint("Vertical", 0))
sketch22.addConstraint(Sketcher.Constraint("Vertical", 2))
sketch22.addConstraint(Sketcher.Constraint("Vertical", 4))
sketch22.addConstraint(Sketcher.Constraint("Vertical", 6))
sketch22.addConstraint(Sketcher.Constraint("Horizontal", 8))
sketch22.addConstraint(Sketcher.Constraint("Vertical", 9))
sketch22.addConstraint(Sketcher.Constraint("Horizontal", 10))
sketch22.addConstraint(Sketcher.Constraint("Vertical", 12))
sketch22.addConstraint(Sketcher.Constraint("Vertical", 14))
sketch22.addConstraint(Sketcher.Constraint("Vertical", 16))
sketch22.addConstraint(Sketcher.Constraint("Coincident", 5, 3, 1, 3))
sketch22.addConstraint(Sketcher.Constraint("Coincident", 7, 3, 1, 3))
sketch22.addConstraint(Sketcher.Constraint("Coincident", 11, 3, 1, 3))
sketch22.addConstraint(Sketcher.Constraint("Coincident", 13, 3, 1, 3))
sketch22.addConstraint(Sketcher.Constraint("Coincident", 17, 3, 1, 3))
sketch22.addConstraint(Sketcher.Constraint("Equal", 1, 5))
sketch22.addConstraint(Sketcher.Constraint("Equal", 7, 11))
sketch22.addConstraint(Sketcher.Constraint("Equal", 5, 13))
sketch22.addConstraint(Sketcher.Constraint("Equal", 3, 15))
sketch22.addConstraint(Sketcher.Constraint("Equal", 13, 17))
sketch22.addConstraint(Sketcher.Constraint("Symmetric", 3, 3, 15, 3, -1))
sketch22.addConstraint(Sketcher.Constraint("Symmetric", 7, 1, 10, 2, -1))
sketch22.addConstraint(Sketcher.Constraint("Horizontal", 2, 2, 3, 1))
sketch22.addConstraint(Sketcher.Constraint("Horizontal", 1, 2, 4, 2))
sketch22.addConstraint(Sketcher.Constraint("Horizontal", 14, 2, 15, 1))
sketch22.addConstraint(Sketcher.Constraint("Vertical", 6, 2, 11, 1))
sketch22.addConstraint(Sketcher.Constraint("Vertical", 4, 2, 13, 2))
sketch22.addConstraint(Sketcher.Constraint("Radius", 3, 3.0))
sketch22.addConstraint(Sketcher.Constraint("Radius", 1, 10.25))
sketch22.addConstraint(Sketcher.Constraint("Radius", 7, 15.25))
sketch22.addConstraint(Sketcher.Constraint("DistanceY", 9, 2, 9, 1, 18.8))
sketch22.addConstraint(Sketcher.Constraint("DistanceX", -1, 1, 0, 2, 18.0))
sketch22.addConstraint(Sketcher.Constraint("DistanceX", -1, 1, 1, 3, 9.5))
sketch22.addConstraint(Sketcher.Constraint("DistanceX", -1, 1, 1, 2, 11.1))
sketch22.addConstraint(Sketcher.Constraint("DistanceX", -1, 1, 5, 2, 2.3))
sketch22.addConstraint(Sketcher.Constraint("DistanceX", -1, 1, 8, 2, 32.3))
sketch22.addConstraint(Sketcher.Constraint("DistanceY", 2, 2, 2, 1, 0.862697))
pad15 = body.newObject("PartDesign::Pad", "Pad014")
pad15.Profile = sketch22
pad15.Length = 2.2
pad15.Reversed = True

# Sketch on XY plane
sketch23 = body.newObject("Sketcher::SketchObject", "Sketch022")
sketch23.AttachmentSupport = (doc.getObject("XY_Plane"), [""])
sketch23.MapMode = "FlatFace"
sketch23.AttachmentOffset = App.Placement(Vector(0, 0, -19), App.Rotation())
add_polygon(sketch23, [(23, 9), (23, -9), (32, -9), (32, 9)])  # lines 0-3
sketch23.addConstraint(Sketcher.Constraint("Vertical", 0))
sketch23.addConstraint(Sketcher.Constraint("Horizontal", 1))
sketch23.addConstraint(Sketcher.Constraint("Vertical", 2))
sketch23.addConstraint(Sketcher.Constraint("Horizontal", 3))
sketch23.addConstraint(Sketcher.Constraint("DistanceX", 1, 1, 1, 2, 9.0))
sketch23.addConstraint(Sketcher.Constraint("DistanceY", 0, 2, 0, 1, 18.8))
sketch23.addConstraint(Sketcher.Constraint("DistanceX", -1, 1, 0, 2, 23.3))
sketch23.addConstraint(Sketcher.Constraint("DistanceY", 0, 2, -1, 1, 9.4))
pad16 = body.newObject("PartDesign::Pad", "Pad015")
pad16.Profile = sketch23
pad16.Length = 6

# Sketch on XY plane
sketch24 = body.newObject("Sketcher::SketchObject", "Sketch023")
sketch24.AttachmentSupport = (doc.getObject("XY_Plane"), [""])
sketch24.MapMode = "FlatFace"
sketch24.AttachmentOffset = App.Placement(Vector(0, 0, -21.2), App.Rotation())
add_polygon(sketch24, [(32, 4), (32, -4), (23, -4), (23, 4)])  # lines 0-3
sketch24.addConstraint(Sketcher.Constraint("Vertical", 0))
sketch24.addConstraint(Sketcher.Constraint("Horizontal", 1))
sketch24.addConstraint(Sketcher.Constraint("Vertical", 2))
sketch24.addConstraint(Sketcher.Constraint("Horizontal", 3))
sketch24.addConstraint(Sketcher.Constraint("DistanceX", 1, 2, 1, 1, 9.0))
sketch24.addConstraint(Sketcher.Constraint("DistanceY", 0, 2, 0, 1, 8.5))
sketch24.addConstraint(Sketcher.Constraint("DistanceX", -1, 1, 0, 2, 32.3))
sketch24.addConstraint(Sketcher.Constraint("DistanceY", 0, 2, -1, 1, 4.25))
pad17 = body.newObject("PartDesign::Pad", "Pad016")
pad17.Profile = sketch24
pad17.Length = 6
pad17.Reversed = True

# Sketch on YZ plane
sketch25 = body.newObject("Sketcher::SketchObject", "Sketch024")
sketch25.AttachmentSupport = (doc.getObject("YZ_Plane"), [""])
sketch25.MapMode = "FlatFace"
sketch25.AttachmentOffset = App.Placement(Vector(0, 0, 32.3), App.Rotation())
add_polygon(sketch25, [(8.4, -14), (-8.4, -14), (-8.4, -18), (8.4, -18)])  # lines 0-3
add_polygon(sketch25, [(3.2, -22.2), (-3.2, -22.2), (-3.2, -26.2), (3.2, -26.2)])  # lines 4-7
sketch25.addConstraint(Sketcher.Constraint("Horizontal", 0))
sketch25.addConstraint(Sketcher.Constraint("Vertical", 1))
sketch25.addConstraint(Sketcher.Constraint("Horizontal", 2))
sketch25.addConstraint(Sketcher.Constraint("Vertical", 3))
sketch25.addConstraint(Sketcher.Constraint("Horizontal", 4))
sketch25.addConstraint(Sketcher.Constraint("Vertical", 5))
sketch25.addConstraint(Sketcher.Constraint("Horizontal", 6))
sketch25.addConstraint(Sketcher.Constraint("Vertical", 7))
sketch25.addConstraint(Sketcher.Constraint("Equal", 3, 5))
sketch25.addConstraint(Sketcher.Constraint("DistanceY", 1, 2, 1, 1, 4.0))
sketch25.addConstraint(Sketcher.Constraint("DistanceX", 0, 2, 0, 1, 16.8))
sketch25.addConstraint(Sketcher.Constraint("DistanceX", 4, 2, 4, 1, 6.5))
sketch25.addConstraint(Sketcher.Constraint("DistanceY", 0, 2, -1, 1, 14.0))
sketch25.addConstraint(Sketcher.Constraint("DistanceX", 0, 2, -1, 1, 8.4))
sketch25.addConstraint(Sketcher.Constraint("DistanceY", 4, 2, -1, 1, 22.2))
sketch25.addConstraint(Sketcher.Constraint("DistanceX", 4, 2, -1, 1, 3.25))
pocket6 = body.newObject("PartDesign::Pocket", "Pocket005")
pocket6.Profile = sketch25
pocket6.Length = 6

# Sketch on XY plane
sketch26 = body.newObject("Sketcher::SketchObject", "Sketch025")
sketch26.AttachmentSupport = (doc.getObject("XY_Plane"), [""])
sketch26.MapMode = "FlatFace"
sketch26.AttachmentOffset = App.Placement(Vector(0, 0, -21.2), App.Rotation())
sketch26.addGeometry(Part.LineSegment(Vector(9.5, 11.2, 0), Vector(9.5, 13.2, 0)), False)
sketch26.addGeometry(Part.ArcOfCircle(Part.Circle(Vector(9.5, 0, 0), Vector(0, 0, 1), 13.2), math.radians(71.13), math.radians(90)), False)
sketch26.addGeometry(Part.LineSegment(Vector(13.8, 12.5, 0), Vector(13.1, 10.6, 0)), False)
sketch26.addGeometry(Part.ArcOfCircle(Part.Circle(Vector(9.5, 0, 0), Vector(0, 0, 1), 11.3), math.radians(71.13), math.radians(90)), False)
sketch26.addGeometry(Part.LineSegment(Vector(4.2, 9.9, 0), Vector(3.2, 11.7, 0)), False)
sketch26.addGeometry(Part.ArcOfCircle(Part.Circle(Vector(9.5, 0, 0), Vector(0, 0, 1), 13.2), math.radians(99.3), math.radians(118.17)), False)
sketch26.addGeometry(Part.LineSegment(Vector(7.4, 13.1, 0), Vector(7.7, 11.1, 0)), False)
sketch26.addGeometry(Part.ArcOfCircle(Part.Circle(Vector(9.5, 0, 0), Vector(0, 0, 1), 11.3), math.radians(99.3), math.radians(118.17)), False)
sketch26.addGeometry(Part.LineSegment(Vector(9.5, -13.2, 0), Vector(9.5, -11.2, 0)), False)
sketch26.addGeometry(Part.ArcOfCircle(Part.Circle(Vector(9.5, 0, 0), Vector(0, 0, 1), 11.3), math.radians(-90), math.radians(-71.13)), False)
sketch26.addGeometry(Part.LineSegment(Vector(13.1, -10.6, 0), Vector(13.8, -12.5, 0)), False)
sketch26.addGeometry(Part.ArcOfCircle(Part.Circle(Vector(9.5, 0, 0), Vector(0, 0, 1), 13.2), math.radians(-90), math.radians(-71.13)), False)
sketch26.addGeometry(Part.ArcOfCircle(Part.Circle(Vector(9.5, 0, 0), Vector(0, 0, 1), 13.2), math.radians(-118.17), math.radians(-99.3)), False)
sketch26.addGeometry(Part.LineSegment(Vector(3.2, -11.7, 0), Vector(4.2, -9.9, 0)), False)
sketch26.addGeometry(Part.ArcOfCircle(Part.Circle(Vector(9.5, 0, 0), Vector(0, 0, 1), 11.3), math.radians(-118.17), math.radians(-99.3)), False)
sketch26.addGeometry(Part.LineSegment(Vector(7.7, -11.1, 0), Vector(7.4, -13.1, 0)), False)
sketch26.addConstraint(Sketcher.Constraint("Coincident", 0, 2, 1, 2))
sketch26.addConstraint(Sketcher.Constraint("Coincident", 1, 1, 2, 1))
sketch26.addConstraint(Sketcher.Constraint("Coincident", 2, 2, 3, 1))
sketch26.addConstraint(Sketcher.Constraint("Coincident", 3, 2, 0, 1))
sketch26.addConstraint(Sketcher.Constraint("Coincident", 4, 2, 5, 2))
sketch26.addConstraint(Sketcher.Constraint("Coincident", 5, 1, 6, 1))
sketch26.addConstraint(Sketcher.Constraint("Coincident", 6, 2, 7, 1))
sketch26.addConstraint(Sketcher.Constraint("Coincident", 7, 2, 4, 1))
sketch26.addConstraint(Sketcher.Constraint("Coincident", 8, 2, 9, 1))
sketch26.addConstraint(Sketcher.Constraint("Coincident", 9, 2, 10, 1))
sketch26.addConstraint(Sketcher.Constraint("Coincident", 10, 2, 11, 2))
sketch26.addConstraint(Sketcher.Constraint("Coincident", 11, 1, 8, 1))
sketch26.addConstraint(Sketcher.Constraint("Coincident", 12, 1, 13, 1))
sketch26.addConstraint(Sketcher.Constraint("Coincident", 13, 2, 14, 1))
sketch26.addConstraint(Sketcher.Constraint("Coincident", 14, 2, 15, 1))
sketch26.addConstraint(Sketcher.Constraint("Coincident", 15, 2, 12, 2))
sketch26.addConstraint(Sketcher.Constraint("Vertical", 0))
sketch26.addConstraint(Sketcher.Constraint("Vertical", 8))
sketch26.addConstraint(Sketcher.Constraint("Coincident", 3, 3, 1, 3))
sketch26.addConstraint(Sketcher.Constraint("Coincident", 5, 3, 1, 3))
sketch26.addConstraint(Sketcher.Constraint("Coincident", 7, 3, 1, 3))
sketch26.addConstraint(Sketcher.Constraint("Coincident", 9, 3, 1, 3))
sketch26.addConstraint(Sketcher.Constraint("Coincident", 11, 3, 1, 3))
sketch26.addConstraint(Sketcher.Constraint("Coincident", 12, 3, 1, 3))
sketch26.addConstraint(Sketcher.Constraint("Coincident", 14, 3, 1, 3))
sketch26.addConstraint(Sketcher.Constraint("Equal", 1, 5))
sketch26.addConstraint(Sketcher.Constraint("Equal", 3, 7))
sketch26.addConstraint(Sketcher.Constraint("Equal", 7, 9))
sketch26.addConstraint(Sketcher.Constraint("Equal", 5, 11))
sketch26.addConstraint(Sketcher.Constraint("Equal", 11, 12))
sketch26.addConstraint(Sketcher.Constraint("Equal", 9, 14))
sketch26.addConstraint(Sketcher.Constraint("Symmetric", 3, 2, 8, 2, -1))
sketch26.addConstraint(Sketcher.Constraint("Vertical", 14, 3, 0, 2))
sketch26.addConstraint(Sketcher.Constraint("Vertical", 2, 2, 9, 2))
sketch26.addConstraint(Sketcher.Constraint("Vertical", 1, 1, 10, 2))
sketch26.addConstraint(Sketcher.Constraint("Vertical", 4, 2, 12, 1))
sketch26.addConstraint(Sketcher.Constraint("Vertical", 7, 2, 13, 2))
sketch26.addConstraint(Sketcher.Constraint("Vertical", 6, 2, 14, 2))
sketch26.addConstraint(Sketcher.Constraint("Vertical", 5, 1, 15, 2))
sketch26.addConstraint(Sketcher.Constraint("DistanceY", 0, 1, 0, 2, 2.0))
sketch26.addConstraint(Sketcher.Constraint("Radius", 1, 13.25))
sketch26.addConstraint(Sketcher.Constraint("DistanceX", -1, 1, 1, 3, 9.5))
sketch26.addConstraint(Sketcher.Constraint("DistanceY", 6, 2, 5, 1, 1.9737))
sketch26.addConstraint(Sketcher.Constraint("DistanceX", 4, 2, 6, 2, 4.437298))
sketch26.addConstraint(Sketcher.Constraint("DistanceX", 13, 2, 9, 2, 8.950099))
sketch26.addConstraint(Sketcher.Constraint("DistanceX", -1, 1, 1, 1, 13.78549))
sketch26.addConstraint(Sketcher.Constraint("DistanceY", -1, 1, 4, 2, 11.68025))
sketch26.addConstraint(Sketcher.Constraint("DistanceX", 4, 2, 2, 2, 9.894361))
pad18 = body.newObject("PartDesign::Pad", "Pad017")
pad18.Profile = sketch26
pad18.Length = 10
pad18.Reversed = True

doc.recompute()
